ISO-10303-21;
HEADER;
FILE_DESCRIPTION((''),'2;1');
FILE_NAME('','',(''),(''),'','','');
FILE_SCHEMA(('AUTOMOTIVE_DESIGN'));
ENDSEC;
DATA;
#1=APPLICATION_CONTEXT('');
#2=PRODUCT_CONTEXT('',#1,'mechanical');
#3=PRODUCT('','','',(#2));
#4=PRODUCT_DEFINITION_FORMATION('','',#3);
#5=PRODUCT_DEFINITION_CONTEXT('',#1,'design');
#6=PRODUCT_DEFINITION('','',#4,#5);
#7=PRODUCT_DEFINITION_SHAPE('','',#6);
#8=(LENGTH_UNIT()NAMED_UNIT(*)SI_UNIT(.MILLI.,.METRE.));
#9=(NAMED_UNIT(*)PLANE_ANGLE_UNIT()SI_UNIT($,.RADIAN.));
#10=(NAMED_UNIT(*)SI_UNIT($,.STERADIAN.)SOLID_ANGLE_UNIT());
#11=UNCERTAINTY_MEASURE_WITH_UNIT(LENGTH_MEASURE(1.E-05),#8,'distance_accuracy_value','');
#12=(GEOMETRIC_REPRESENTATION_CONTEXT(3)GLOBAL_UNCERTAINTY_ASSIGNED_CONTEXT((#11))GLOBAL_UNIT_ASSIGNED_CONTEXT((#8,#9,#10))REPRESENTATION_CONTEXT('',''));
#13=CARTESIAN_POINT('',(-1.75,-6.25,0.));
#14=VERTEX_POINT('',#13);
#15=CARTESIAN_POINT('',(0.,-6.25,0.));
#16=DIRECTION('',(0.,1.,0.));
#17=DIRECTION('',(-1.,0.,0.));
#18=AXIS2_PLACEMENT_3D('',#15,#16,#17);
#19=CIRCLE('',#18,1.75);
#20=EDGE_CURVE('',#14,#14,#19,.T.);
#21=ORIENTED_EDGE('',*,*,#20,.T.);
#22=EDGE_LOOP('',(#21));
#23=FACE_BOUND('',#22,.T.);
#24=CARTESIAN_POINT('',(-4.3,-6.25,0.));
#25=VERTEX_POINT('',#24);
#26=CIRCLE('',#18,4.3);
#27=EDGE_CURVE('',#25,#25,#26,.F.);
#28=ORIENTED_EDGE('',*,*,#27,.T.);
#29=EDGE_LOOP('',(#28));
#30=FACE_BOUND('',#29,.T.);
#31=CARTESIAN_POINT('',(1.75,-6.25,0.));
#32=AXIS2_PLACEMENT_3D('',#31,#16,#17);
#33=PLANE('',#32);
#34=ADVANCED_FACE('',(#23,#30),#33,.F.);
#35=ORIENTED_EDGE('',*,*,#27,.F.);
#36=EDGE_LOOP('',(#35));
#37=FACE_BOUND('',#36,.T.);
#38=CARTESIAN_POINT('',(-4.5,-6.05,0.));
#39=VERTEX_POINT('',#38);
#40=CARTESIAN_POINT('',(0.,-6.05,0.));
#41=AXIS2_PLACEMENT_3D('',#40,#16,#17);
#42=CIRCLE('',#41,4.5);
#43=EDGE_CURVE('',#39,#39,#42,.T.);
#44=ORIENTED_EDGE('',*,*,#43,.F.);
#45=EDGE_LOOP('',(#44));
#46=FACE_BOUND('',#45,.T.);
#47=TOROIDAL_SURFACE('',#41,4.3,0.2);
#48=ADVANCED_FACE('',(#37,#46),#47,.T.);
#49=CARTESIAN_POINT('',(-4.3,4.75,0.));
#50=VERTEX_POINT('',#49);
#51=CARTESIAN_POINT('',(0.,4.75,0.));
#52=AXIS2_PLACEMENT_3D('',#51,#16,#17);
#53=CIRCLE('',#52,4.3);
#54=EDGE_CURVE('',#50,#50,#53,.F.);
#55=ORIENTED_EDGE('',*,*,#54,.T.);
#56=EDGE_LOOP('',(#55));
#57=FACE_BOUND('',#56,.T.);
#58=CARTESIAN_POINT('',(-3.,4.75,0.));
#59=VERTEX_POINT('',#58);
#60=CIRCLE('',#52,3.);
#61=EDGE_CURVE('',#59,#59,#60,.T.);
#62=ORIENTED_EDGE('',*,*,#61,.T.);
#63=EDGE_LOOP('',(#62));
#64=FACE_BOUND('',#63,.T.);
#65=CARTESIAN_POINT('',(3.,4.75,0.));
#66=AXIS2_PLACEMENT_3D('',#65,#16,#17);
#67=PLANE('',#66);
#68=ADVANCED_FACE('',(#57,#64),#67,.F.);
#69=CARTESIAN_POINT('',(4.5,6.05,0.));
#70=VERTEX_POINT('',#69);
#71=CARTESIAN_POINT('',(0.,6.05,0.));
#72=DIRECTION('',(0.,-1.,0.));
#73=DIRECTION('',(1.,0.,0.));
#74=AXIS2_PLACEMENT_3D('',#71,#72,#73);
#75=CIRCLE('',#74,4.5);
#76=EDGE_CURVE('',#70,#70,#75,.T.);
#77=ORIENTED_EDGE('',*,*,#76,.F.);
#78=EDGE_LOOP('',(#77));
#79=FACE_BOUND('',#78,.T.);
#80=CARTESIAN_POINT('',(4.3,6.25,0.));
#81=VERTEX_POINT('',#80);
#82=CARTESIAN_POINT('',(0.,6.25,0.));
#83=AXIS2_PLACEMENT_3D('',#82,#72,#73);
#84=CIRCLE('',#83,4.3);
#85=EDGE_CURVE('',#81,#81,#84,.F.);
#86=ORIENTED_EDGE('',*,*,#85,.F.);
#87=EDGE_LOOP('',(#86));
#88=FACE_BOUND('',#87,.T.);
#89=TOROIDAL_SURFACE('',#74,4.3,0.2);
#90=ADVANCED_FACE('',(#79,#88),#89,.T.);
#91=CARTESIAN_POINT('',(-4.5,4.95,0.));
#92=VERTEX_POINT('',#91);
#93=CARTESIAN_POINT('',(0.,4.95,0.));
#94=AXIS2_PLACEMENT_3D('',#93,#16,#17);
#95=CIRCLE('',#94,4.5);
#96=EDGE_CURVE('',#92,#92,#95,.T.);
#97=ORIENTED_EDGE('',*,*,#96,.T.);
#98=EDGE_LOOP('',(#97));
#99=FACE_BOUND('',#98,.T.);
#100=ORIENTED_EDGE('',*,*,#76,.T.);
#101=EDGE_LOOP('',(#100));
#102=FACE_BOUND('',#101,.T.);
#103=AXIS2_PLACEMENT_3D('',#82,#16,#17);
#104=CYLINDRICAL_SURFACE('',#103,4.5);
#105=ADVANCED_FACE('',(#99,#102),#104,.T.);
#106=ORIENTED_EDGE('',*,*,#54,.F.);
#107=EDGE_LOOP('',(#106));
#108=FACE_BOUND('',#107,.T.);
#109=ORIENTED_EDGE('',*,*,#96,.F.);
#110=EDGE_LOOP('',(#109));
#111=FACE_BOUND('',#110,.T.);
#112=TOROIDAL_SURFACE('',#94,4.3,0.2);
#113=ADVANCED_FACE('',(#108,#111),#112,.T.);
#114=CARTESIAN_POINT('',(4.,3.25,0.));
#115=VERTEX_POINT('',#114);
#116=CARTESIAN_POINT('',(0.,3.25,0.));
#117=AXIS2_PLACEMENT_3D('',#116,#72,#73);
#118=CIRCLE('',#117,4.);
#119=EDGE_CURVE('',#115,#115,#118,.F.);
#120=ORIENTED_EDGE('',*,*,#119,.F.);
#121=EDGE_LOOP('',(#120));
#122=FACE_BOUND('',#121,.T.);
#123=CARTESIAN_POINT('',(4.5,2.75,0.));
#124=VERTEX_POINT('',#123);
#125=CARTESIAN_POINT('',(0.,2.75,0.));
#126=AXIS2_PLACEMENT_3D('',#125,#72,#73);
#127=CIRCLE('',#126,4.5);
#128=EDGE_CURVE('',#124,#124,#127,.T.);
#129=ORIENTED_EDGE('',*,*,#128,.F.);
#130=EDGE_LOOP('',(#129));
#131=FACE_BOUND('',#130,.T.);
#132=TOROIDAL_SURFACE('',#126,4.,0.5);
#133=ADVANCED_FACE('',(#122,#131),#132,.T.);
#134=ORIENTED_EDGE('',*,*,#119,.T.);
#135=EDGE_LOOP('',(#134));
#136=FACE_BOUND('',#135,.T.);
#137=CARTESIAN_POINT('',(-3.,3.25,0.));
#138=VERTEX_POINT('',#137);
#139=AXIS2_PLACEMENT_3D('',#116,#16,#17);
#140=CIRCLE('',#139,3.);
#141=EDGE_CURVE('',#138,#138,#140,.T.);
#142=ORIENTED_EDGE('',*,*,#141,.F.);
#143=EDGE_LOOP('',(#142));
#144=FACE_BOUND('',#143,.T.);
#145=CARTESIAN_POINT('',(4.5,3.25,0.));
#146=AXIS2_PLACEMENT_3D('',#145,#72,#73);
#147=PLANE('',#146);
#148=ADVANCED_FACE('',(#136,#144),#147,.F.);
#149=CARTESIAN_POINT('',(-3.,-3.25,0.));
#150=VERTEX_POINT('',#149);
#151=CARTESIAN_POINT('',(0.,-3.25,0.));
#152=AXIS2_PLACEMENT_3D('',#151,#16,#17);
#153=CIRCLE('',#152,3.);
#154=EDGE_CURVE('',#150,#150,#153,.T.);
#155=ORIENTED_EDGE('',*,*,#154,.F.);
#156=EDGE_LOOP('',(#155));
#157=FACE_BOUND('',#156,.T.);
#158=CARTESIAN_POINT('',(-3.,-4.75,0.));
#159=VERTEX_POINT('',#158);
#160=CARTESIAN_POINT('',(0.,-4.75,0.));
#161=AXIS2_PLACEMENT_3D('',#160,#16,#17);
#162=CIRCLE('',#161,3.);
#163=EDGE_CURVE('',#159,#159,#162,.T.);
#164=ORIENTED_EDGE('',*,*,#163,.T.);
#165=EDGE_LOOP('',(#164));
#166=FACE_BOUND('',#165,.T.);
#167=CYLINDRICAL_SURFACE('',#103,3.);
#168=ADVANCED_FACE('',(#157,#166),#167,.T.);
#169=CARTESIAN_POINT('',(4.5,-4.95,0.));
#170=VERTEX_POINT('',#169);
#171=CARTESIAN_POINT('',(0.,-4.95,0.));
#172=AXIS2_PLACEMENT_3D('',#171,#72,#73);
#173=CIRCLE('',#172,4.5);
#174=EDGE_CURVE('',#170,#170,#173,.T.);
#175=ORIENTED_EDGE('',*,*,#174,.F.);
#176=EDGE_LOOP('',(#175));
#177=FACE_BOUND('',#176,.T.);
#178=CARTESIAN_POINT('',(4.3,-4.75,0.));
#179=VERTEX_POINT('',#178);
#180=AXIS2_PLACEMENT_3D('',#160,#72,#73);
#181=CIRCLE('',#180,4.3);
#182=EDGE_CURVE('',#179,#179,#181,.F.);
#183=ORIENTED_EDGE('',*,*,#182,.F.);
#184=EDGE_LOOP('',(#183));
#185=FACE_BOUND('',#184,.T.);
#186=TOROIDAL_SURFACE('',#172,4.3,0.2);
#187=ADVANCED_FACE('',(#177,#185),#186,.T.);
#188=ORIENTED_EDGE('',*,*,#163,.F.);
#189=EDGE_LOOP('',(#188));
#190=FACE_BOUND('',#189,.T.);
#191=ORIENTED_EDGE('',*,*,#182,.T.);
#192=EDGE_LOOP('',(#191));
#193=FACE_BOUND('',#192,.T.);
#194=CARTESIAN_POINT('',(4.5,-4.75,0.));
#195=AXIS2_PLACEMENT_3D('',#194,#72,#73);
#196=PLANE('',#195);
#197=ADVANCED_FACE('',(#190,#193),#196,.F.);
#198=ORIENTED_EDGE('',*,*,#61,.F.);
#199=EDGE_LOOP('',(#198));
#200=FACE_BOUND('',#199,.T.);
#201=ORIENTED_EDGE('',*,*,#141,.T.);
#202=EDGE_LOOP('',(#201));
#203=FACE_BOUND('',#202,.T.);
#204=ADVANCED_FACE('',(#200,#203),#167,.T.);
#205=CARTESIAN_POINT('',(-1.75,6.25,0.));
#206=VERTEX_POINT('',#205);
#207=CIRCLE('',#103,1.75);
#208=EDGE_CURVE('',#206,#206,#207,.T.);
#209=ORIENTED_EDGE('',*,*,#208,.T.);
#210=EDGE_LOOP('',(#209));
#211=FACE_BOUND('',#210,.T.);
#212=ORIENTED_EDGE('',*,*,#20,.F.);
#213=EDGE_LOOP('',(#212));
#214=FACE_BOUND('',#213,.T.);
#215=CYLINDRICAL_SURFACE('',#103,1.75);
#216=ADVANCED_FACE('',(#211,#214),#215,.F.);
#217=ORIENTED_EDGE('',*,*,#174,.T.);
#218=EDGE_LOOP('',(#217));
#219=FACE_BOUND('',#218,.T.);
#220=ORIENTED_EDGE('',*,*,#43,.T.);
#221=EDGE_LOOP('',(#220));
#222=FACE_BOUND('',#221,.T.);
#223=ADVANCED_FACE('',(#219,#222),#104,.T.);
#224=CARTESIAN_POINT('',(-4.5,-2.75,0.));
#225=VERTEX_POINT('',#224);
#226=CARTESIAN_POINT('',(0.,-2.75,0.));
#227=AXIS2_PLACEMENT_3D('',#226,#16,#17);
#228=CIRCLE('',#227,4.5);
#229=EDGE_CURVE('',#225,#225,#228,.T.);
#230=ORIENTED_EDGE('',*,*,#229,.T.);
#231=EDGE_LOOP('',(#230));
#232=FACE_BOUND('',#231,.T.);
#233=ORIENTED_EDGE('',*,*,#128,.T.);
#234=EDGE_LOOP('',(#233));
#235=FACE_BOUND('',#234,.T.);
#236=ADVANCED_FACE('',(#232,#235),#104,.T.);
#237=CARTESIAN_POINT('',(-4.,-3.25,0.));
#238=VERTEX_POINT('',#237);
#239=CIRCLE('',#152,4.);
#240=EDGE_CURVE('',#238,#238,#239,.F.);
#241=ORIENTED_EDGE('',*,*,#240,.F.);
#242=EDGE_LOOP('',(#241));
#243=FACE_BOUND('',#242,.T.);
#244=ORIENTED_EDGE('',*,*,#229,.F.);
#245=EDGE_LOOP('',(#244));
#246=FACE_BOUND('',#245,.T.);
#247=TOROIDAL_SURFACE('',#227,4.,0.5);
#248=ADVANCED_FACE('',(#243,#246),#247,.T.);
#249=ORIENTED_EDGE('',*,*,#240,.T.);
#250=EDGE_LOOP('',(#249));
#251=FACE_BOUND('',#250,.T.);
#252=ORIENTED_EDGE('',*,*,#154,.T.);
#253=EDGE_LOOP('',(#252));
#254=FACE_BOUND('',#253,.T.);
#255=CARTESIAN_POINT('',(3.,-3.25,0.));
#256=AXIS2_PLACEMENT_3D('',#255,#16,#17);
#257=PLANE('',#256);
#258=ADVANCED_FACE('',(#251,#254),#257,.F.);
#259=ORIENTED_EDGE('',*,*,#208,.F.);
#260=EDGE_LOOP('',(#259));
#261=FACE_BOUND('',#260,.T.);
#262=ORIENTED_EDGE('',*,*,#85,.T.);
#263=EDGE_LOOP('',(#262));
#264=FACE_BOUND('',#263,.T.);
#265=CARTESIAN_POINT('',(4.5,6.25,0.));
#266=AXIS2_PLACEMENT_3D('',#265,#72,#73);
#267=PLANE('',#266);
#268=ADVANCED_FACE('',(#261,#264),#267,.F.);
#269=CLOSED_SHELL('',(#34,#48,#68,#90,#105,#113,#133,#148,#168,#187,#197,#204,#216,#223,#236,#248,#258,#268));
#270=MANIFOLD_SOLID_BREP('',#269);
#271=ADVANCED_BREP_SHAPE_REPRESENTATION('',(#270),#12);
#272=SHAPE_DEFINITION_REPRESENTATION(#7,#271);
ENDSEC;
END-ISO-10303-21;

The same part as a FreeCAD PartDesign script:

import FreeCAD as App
import Part
import Sketcher
Q = App.Units.Quantity


def edges_at(feature, points):
    """Names of the edges that pass closest to the given points."""
    edges = feature.Shape.Edges
    near = lambda p: min(range(len(edges)), key=lambda i: edges[i].distToShape(Part.Vertex(*p))[0])
    return sorted({f"Edge{near(p) + 1}" for p in points})


def add_polygon(sketch, points):
    """Adds a closed chain of lines whose ends are joined by coincident constraints."""
    first, n = sketch.GeometryCount, len(points)
    for a, b in zip(points, points[1:] + points[:1]):
        sketch.addGeometry(Part.LineSegment(App.Vector(*a, 0), App.Vector(*b, 0)), False)
    for i in range(n):
        sketch.addConstraint(Sketcher.Constraint("Coincident", first + i, 2, first + (i + 1) % n, 1))

doc = App.newDocument("Part")
body = doc.addObject("PartDesign::Body", "Body")

# Sketch on XY plane
sketch1 = doc.addObject("Sketcher::SketchObject", "Sketch")
body.addObject(sketch1)
sketch1.AttachmentSupport = (doc.XY_Plane, [""])
sketch1.MapMode = "FlatFace"
add_polygon(sketch1, [(1.8, 6.2), (1.8, -6.2), (4.5, -6.2), (4.5, -4.8), (3, -4.8), (3, -3.2), (4.5, -3.2), (4.5, 3.2), (3, 3.2), (3, 4.8), (4.5, 4.8), (4.5, 6.2)])  # lines 0-11
sketch1.addConstraint(Sketcher.Constraint("Vertical", 0))
sketch1.addConstraint(Sketcher.Constraint("Horizontal", 1))
sketch1.addConstraint(Sketcher.Constraint("Vertical", 2))
sketch1.addConstraint(Sketcher.Constraint("Horizontal", 3))
sketch1.addConstraint(Sketcher.Constraint("Vertical", 4))
sketch1.addConstraint(Sketcher.Constraint("Horizontal", 5))
sketch1.addConstraint(Sketcher.Constraint("Vertical", 6))
sketch1.addConstraint(Sketcher.Constraint("Horizontal", 7))
sketch1.addConstraint(Sketcher.Constraint("Vertical", 8))
sketch1.addConstraint(Sketcher.Constraint("Horizontal", 9))
sketch1.addConstraint(Sketcher.Constraint("Vertical", 10))
sketch1.addConstraint(Sketcher.Constraint("Horizontal", 11))
sketch1.addConstraint(Sketcher.Constraint("Symmetric", 4, 2, 7, 2, -1))
sketch1.addConstraint(Sketcher.Constraint("Symmetric", 2, 2, 9, 2, -1))
sketch1.addConstraint(Sketcher.Constraint("Vertical", 2, 2, 5, 2))
sketch1.addConstraint(Sketcher.Constraint("Equal", 9, 2))
sketch1.addConstraint(Sketcher.Constraint("Equal", 2, 4))
sketch1.addConstraint(Sketcher.Constraint("Equal", 8, 10))
sketch1.addConstraint(Sketcher.Constraint("DistanceX", 3, 2, 3, 1, Q("1.5 mm")))
sketch1.addConstraint(Sketcher.Constraint("DistanceY", 0, 2, 0, 1, Q("12.5 mm")))
sketch1.addConstraint(Sketcher.Constraint("DistanceX", -1, 1, 3, 2, Q("3 mm")))
sketch1.addConstraint(Sketcher.Constraint("DistanceX", 1, 1, 1, 2, Q("2.75 mm")))
revolution = doc.addObject("PartDesign::Revolution", "Revolution")
body.addObject(revolution)
revolution.Profile = sketch1
revolution.ReferenceAxis = (sketch1, ["V_Axis"])
revolution.Angle = 360
doc.recompute()

fillet = doc.addObject("PartDesign::Fillet", "Fillet")
body.addObject(fillet)
fillet.Base = (revolution, edges_at(revolution, [(4.5, 3.25, 0), (4.5, -3.25, 0)]))
fillet.Radius = 0.5
doc.recompute()

fillet2 = doc.addObject("PartDesign::Fillet", "Fillet001")
body.addObject(fillet2)
fillet2.Base = (fillet, edges_at(fillet, [
    (4.5, -4.75, 0),
    (4.5, -6.25, 0),
    (4.5, 6.25, 0),
    (4.5, 4.75, 0),
]))
fillet2.Radius = 0.2

doc.recompute()
